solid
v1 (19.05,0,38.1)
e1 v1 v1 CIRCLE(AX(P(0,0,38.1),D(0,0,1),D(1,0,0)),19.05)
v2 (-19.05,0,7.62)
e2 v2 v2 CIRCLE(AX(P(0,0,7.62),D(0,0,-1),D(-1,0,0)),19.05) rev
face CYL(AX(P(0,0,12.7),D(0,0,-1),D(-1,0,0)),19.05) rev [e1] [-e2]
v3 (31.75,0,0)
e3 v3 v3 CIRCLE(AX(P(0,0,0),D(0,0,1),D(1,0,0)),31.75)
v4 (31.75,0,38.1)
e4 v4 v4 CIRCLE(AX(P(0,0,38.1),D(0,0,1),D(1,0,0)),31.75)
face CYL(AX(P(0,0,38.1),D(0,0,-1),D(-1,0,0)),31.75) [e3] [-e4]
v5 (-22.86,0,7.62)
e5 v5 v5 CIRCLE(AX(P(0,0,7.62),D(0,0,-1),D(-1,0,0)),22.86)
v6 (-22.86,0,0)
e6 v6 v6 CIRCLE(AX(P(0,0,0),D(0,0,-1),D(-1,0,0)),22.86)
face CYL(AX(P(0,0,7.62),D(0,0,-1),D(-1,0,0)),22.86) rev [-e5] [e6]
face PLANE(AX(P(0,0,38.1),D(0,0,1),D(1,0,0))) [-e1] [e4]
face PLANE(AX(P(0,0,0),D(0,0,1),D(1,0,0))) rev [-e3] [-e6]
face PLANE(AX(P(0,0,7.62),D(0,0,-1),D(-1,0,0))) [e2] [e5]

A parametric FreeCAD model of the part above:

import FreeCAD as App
import Part
import Sketcher
Q = App.Units.Quantity

doc = App.newDocument("Part")
body = doc.addObject("PartDesign::Body", "Body")

# Sketch on XY plane
sketch1 = body.newObject("Sketcher::SketchObject", "Sketch")
sketch1.AttachmentSupport = (doc.getObject("XY_Plane"), [""])
sketch1.MapMode = "FlatFace"
sketch1.addGeometry(Part.Circle(App.Vector(0, 0, 0), App.Vector(0, 0, 1), 32), False)
sketch1.addConstraint([
    Sketcher.Constraint("Coincident", 0, 3, -1, 1),
    Sketcher.Constraint("Diameter", 0, Q("2.5 in")),
])
pad1 = body.newObject("PartDesign::Pad", "Pad")
pad1.Profile = sketch1
pad1.Length = Q("1.5 in")

# Sketch on XY plane
sketch2 = body.newObject("Sketcher::SketchObject", "Sketch001")
sketch2.AttachmentSupport = (doc.getObject("XY_Plane"), [""])
sketch2.MapMode = "FlatFace"
sketch2.addGeometry(Part.Circle(App.Vector(0, 0, 0), App.Vector(0, 0, 1), 19), False)
sketch2.addConstraint([
    Sketcher.Constraint("Coincident", 0, 3, -1, 1),
    Sketcher.Constraint("Diameter", 0, Q("1.5 in")),
])
pocket1 = body.newObject("PartDesign::Pocket", "Pocket")
pocket1.Profile = sketch2
pocket1.Length = Q("0.5 in")
pocket1.Reversed = True

# Sketch on XY plane
sketch3 = body.newObject("Sketcher::SketchObject", "Sketch002")
sketch3.AttachmentSupport = (doc.getObject("XY_Plane"), [""])
sketch3.MapMode = "FlatFace"
sketch3.AttachmentOffset = App.Placement(App.Vector(0, 0, 1.5 * 25.4), App.Rotation())
sketch3.addGeometry(Part.Circle(App.Vector(0, 0, 0), App.Vector(0, 0, 1), 19), False)
sketch3.addConstraint([
    Sketcher.Constraint("Coincident", 0, 3, -1, 1),
    Sketcher.Constraint("Diameter", 0, Q("1.5 in")),
])
pocket2 = body.newObject("PartDesign::Pocket", "Pocket001")
pocket2.Profile = sketch3
pocket2.Type = "ThroughAll"

# Sketch on XY plane
sketch4 = body.newObject("Sketcher::SketchObject", "Sketch003")
sketch4.AttachmentSupport = (doc.getObject("XY_Plane"), [""])
sketch4.MapMode = "FlatFace"
sketch4.addGeometry(Part.Circle(App.Vector(0, 0, 0), App.Vector(0, 0, 1), 23), False)
sketch4.addConstraint([
    Sketcher.Constraint("Coincident", 0, 3, -1, 1),
    Sketcher.Constraint("Diameter", 0, Q("1.8 in")),
])
pocket3 = body.newObject("PartDesign::Pocket", "Pocket002")
pocket3.Profile = sketch4
pocket3.Length = Q("0.3 in")
pocket3.Reversed = True

doc.recompute()
